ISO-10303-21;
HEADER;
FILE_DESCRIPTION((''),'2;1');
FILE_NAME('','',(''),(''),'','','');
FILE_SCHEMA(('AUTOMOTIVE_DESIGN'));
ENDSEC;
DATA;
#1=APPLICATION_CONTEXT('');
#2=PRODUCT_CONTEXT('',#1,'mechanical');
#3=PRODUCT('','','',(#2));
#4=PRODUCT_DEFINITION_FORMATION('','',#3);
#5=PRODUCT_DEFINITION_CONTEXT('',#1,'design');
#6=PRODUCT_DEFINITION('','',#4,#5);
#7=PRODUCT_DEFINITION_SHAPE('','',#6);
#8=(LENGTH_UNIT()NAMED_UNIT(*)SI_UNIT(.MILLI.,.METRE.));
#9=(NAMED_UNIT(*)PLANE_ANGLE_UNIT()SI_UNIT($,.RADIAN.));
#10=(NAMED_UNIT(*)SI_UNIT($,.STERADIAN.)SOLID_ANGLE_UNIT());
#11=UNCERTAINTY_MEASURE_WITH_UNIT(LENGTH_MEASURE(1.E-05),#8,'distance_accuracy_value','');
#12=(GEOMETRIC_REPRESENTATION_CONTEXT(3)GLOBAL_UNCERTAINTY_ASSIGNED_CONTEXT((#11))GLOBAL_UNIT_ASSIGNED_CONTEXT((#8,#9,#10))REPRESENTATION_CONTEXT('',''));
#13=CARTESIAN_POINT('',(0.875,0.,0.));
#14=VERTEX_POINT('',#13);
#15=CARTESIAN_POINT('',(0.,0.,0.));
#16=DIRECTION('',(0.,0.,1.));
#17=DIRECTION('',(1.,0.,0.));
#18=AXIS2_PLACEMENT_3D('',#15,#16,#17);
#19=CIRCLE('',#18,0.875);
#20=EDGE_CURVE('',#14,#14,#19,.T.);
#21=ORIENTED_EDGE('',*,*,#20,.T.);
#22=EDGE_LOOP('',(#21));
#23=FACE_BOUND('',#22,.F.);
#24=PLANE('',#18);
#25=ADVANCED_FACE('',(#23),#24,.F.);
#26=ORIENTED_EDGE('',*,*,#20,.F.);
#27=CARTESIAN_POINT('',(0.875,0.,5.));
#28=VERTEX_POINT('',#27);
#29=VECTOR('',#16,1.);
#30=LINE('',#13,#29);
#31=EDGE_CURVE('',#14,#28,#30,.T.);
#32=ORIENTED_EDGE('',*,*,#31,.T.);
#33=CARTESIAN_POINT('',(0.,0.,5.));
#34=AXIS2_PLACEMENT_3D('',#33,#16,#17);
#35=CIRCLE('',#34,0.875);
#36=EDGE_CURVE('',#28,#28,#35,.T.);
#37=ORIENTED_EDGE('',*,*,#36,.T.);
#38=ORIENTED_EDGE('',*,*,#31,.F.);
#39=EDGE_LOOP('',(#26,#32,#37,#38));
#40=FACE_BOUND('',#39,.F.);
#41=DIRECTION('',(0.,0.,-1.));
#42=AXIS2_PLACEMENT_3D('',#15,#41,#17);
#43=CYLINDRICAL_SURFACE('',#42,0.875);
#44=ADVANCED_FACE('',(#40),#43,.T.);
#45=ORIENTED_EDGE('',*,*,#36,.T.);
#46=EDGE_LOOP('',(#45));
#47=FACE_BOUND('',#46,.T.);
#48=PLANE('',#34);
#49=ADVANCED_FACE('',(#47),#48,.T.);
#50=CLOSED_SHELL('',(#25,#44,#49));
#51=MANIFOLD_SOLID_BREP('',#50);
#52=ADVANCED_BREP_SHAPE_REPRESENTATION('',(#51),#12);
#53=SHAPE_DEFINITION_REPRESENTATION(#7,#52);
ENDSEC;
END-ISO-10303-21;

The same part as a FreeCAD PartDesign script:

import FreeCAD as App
import Part
import Sketcher

doc = App.newDocument("Part")
body = doc.addObject("PartDesign::Body", "Body")

# Sketch on XY plane
sketch1 = doc.addObject("Sketcher::SketchObject", "Sketch")
body.addObject(sketch1)
sketch1.AttachmentSupport = (doc.XY_Plane, [""])
sketch1.MapMode = "FlatFace"
sketch1.addGeometry(Part.Circle(App.Vector(0, 0, 0), App.Vector(0, 0, 1), 0.9), False)
sketch1.addConstraint([
    Sketcher.Constraint("Coincident", 0, 3, -1, 1),
    Sketcher.Constraint("Diameter", 0, 1.75),
])
pad1 = doc.addObject("PartDesign::Pad", "Pad")
body.addObject(pad1)
pad1.Profile = sketch1
pad1.Length = 5

doc.recompute()
